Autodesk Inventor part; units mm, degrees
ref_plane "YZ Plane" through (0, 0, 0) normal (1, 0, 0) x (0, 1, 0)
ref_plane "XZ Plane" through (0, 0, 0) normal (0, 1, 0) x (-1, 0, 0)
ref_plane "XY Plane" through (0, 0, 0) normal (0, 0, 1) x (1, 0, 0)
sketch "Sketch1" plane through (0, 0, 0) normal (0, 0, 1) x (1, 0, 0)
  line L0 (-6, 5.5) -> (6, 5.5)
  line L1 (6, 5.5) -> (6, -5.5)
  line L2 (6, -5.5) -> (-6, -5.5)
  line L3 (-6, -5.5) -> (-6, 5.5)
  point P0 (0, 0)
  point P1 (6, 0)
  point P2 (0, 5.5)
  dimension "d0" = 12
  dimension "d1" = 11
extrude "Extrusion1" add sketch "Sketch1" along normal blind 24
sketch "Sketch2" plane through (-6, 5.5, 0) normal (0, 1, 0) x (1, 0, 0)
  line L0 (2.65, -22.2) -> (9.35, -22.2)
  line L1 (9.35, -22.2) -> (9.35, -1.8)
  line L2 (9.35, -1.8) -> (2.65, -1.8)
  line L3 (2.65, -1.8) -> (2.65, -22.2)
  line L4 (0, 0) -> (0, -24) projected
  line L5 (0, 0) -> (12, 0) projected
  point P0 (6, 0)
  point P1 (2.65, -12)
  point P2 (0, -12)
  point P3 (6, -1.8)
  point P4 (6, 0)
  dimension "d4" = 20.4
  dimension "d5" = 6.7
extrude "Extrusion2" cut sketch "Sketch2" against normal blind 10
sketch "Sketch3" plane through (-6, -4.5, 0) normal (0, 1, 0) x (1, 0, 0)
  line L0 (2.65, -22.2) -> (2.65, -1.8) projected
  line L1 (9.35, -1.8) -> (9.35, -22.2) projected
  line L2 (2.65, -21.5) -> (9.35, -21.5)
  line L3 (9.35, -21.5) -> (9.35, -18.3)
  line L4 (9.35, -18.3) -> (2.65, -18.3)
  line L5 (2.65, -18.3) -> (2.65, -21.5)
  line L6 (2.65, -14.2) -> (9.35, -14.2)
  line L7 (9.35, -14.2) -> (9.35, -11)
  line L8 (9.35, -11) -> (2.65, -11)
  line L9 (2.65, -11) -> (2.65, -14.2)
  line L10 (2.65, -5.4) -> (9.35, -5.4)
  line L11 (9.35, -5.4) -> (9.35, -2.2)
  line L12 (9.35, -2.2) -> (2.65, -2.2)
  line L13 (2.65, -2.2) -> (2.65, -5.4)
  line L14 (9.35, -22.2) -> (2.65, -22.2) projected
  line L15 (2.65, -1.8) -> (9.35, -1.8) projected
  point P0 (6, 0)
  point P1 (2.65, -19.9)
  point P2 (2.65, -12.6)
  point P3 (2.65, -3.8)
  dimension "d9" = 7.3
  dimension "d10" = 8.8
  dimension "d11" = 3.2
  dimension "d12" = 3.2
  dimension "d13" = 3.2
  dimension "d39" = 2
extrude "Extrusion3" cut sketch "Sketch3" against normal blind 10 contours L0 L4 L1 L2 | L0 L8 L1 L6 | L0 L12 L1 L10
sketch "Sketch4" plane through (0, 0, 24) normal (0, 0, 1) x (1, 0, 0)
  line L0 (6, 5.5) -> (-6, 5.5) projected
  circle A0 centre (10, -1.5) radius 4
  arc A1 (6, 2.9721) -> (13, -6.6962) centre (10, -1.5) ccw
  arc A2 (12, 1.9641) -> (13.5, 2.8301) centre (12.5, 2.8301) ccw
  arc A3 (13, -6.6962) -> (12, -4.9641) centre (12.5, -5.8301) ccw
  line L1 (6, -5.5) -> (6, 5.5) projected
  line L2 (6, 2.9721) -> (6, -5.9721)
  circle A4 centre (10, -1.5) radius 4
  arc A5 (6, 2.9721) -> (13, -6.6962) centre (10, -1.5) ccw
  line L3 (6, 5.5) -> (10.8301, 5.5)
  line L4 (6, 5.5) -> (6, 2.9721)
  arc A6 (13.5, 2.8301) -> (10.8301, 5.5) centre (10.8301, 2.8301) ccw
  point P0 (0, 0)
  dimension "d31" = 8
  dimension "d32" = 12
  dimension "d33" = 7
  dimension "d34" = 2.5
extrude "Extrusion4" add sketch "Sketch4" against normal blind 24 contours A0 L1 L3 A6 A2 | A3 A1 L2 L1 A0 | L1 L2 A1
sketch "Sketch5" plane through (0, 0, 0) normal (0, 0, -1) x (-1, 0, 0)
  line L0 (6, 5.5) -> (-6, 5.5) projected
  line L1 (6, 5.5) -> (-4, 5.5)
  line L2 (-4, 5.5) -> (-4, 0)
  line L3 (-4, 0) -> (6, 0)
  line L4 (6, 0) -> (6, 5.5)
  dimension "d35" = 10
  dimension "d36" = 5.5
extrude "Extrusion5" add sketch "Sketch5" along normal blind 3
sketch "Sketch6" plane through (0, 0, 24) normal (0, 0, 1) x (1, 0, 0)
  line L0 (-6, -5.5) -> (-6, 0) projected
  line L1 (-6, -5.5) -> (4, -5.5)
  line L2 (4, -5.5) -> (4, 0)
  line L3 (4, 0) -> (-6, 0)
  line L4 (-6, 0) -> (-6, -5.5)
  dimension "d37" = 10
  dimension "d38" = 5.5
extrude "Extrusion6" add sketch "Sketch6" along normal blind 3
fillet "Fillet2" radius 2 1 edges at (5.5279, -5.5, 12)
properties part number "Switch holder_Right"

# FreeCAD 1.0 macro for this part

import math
import FreeCAD as App
import Part
import Sketcher

V = App.Vector


def edges_at(feature, points):
    """Names of the edges that pass closest to the given points."""
    edges = feature.Shape.Edges
    near = lambda p: min(range(len(edges)), key=lambda i: edges[i].distToShape(Part.Vertex(*p))[0])
    return sorted({f"Edge{near(p) + 1}" for p in points})


def add_polygon(sketch, points):
    """Adds a closed chain of lines whose ends are joined by coincident constraints."""
    first, n = sketch.GeometryCount, len(points)
    for a, b in zip(points, points[1:] + points[:1]):
        sketch.addGeometry(Part.LineSegment(App.Vector(*a, 0), App.Vector(*b, 0)), False)
    for i in range(n):
        sketch.addConstraint(Sketcher.Constraint("Coincident", first + i, 2, first + (i + 1) % n, 1))

doc = App.newDocument("Part")
body = doc.addObject("PartDesign::Body", "Body")

sketch1 = doc.addObject("Sketcher::SketchObject", "Sketch")
body.addObject(sketch1)
sketch1.AttachmentSupport = (doc.XY_Plane, [""])
sketch1.MapMode = "FlatFace"
add_polygon(sketch1, [(6, 5.5), (-6, 5.5), (-6, -5.5), (6, -5.5)])
sketch1.addConstraint([
    Sketcher.Constraint("Horizontal", 0),
    Sketcher.Constraint("Vertical", 1),
    Sketcher.Constraint("Horizontal", 2),
    Sketcher.Constraint("Vertical", 3),
    Sketcher.Constraint("Symmetric", 0, 2, 2, 2, -1, 1),
    Sketcher.Constraint("DistanceX", 0, 2, 0, 1, 12.0),
    Sketcher.Constraint("DistanceY", 1, 2, 1, 1, 11.0),
])
pad1 = doc.addObject("PartDesign::Pad", "Pad")
body.addObject(pad1)
pad1.Profile = sketch1
pad1.Length = 24

sketch2 = doc.addObject("Sketcher::SketchObject", "Sketch001")
body.addObject(sketch2)
sketch2.AttachmentSupport = (doc.XZ_Plane, [""])
sketch2.MapMode = "FlatFace"
sketch2.AttachmentOffset = App.Placement(V(0, 0, -5.5), App.Rotation())
add_polygon(sketch2, [(-3.35, 1.8), (-3.35, 22.2), (3.35, 22.2), (3.35, 1.8)])
sketch2.addConstraint([
    Sketcher.Constraint("Vertical", 0),
    Sketcher.Constraint("Horizontal", 1),
    Sketcher.Constraint("Vertical", 2),
    Sketcher.Constraint("Horizontal", 3),
    Sketcher.Constraint("DistanceX", 1, 1, 1, 2, 6.7),
    Sketcher.Constraint("DistanceY", 0, 1, 0, 2, 20.4),
    Sketcher.Constraint("DistanceY", -1, 1, 0, 2, 22.2),
    Sketcher.Constraint("DistanceX", 0, 2, -1, 1, 3.35),
])
pocket1 = doc.addObject("PartDesign::Pocket", "Pocket")
body.addObject(pocket1)
pocket1.Profile = sketch2
pocket1.Length = 10
pocket1.Reversed = True

sketch3 = doc.addObject("Sketcher::SketchObject", "Sketch002")
body.addObject(sketch3)
sketch3.AttachmentSupport = (doc.XZ_Plane, [""])
sketch3.MapMode = "FlatFace"
sketch3.AttachmentOffset = App.Placement(V(0, 0, 4.5), App.Rotation())
add_polygon(sketch3, [(-3.35, 18.3), (-3.35, 21.5), (3.35, 21.5), (3.35, 18.3)])
add_polygon(sketch3, [(-3.35, 11), (-3.35, 14.2), (3.35, 14.2), (3.35, 11)])
add_polygon(sketch3, [(-3.35, 2.2), (-3.35, 5.4), (3.35, 5.4), (3.35, 2.2)])
sketch3.addConstraint([
    Sketcher.Constraint("Vertical", 0),
    Sketcher.Constraint("Horizontal", 1),
    Sketcher.Constraint("Vertical", 2),
    Sketcher.Constraint("Horizontal", 3),
    Sketcher.Constraint("Vertical", 4),
    Sketcher.Constraint("Horizontal", 5),
    Sketcher.Constraint("Vertical", 6),
    Sketcher.Constraint("Horizontal", 7),
    Sketcher.Constraint("Vertical", 8),
    Sketcher.Constraint("Horizontal", 9),
    Sketcher.Constraint("Vertical", 10),
    Sketcher.Constraint("Horizontal", 11),
    Sketcher.Constraint("Vertical", 3, 2, 4, 2),
    Sketcher.Constraint("Vertical", 2, 2, 5, 2),
    Sketcher.Constraint("Vertical", 7, 2, 8, 2),
    Sketcher.Constraint("Vertical", 6, 2, 9, 2),
    Sketcher.Constraint("Equal", 2, 4),
    Sketcher.Constraint("Equal", 6, 8),
    Sketcher.Constraint("DistanceY", 0, 1, 0, 2, 3.2),
    Sketcher.Constraint("DistanceY", 4, 2, 0, 2, 7.3),
    Sketcher.Constraint("DistanceY", 8, 2, 4, 2, 8.8),
    Sketcher.Constraint("DistanceX", 1, 1, 1, 2, 6.7),
    Sketcher.Constraint("DistanceY", -1, 1, 6, 2, 11.0),
    Sketcher.Constraint("DistanceX", 0, 2, -1, 1, 3.35),
])
pocket2 = doc.addObject("PartDesign::Pocket", "Pocket001")
body.addObject(pocket2)
pocket2.Profile = sketch3
pocket2.Length = 10
pocket2.Reversed = True

sketch4 = doc.addObject("Sketcher::SketchObject", "Sketch003")
body.addObject(sketch4)
sketch4.AttachmentSupport = (doc.XY_Plane, [""])
sketch4.MapMode = "FlatFace"
sketch4.AttachmentOffset = App.Placement(V(0, 0, 24), App.Rotation())
sketch4.addGeometry([
    Part.ArcOfCircle(Part.Circle(V(12.5, 2.8301, 0), V(0, 0, 1), 0.999978), math.radians(-120.000728), math.radians(0)),
    Part.ArcOfCircle(Part.Circle(V(10.8301, 2.8301, 0), V(0, 0, 1), 2.6699), math.radians(0), math.radians(90)),
    Part.LineSegment(V(10.8301, 5.5, 0), V(6, 5.5, 0)),
    Part.LineSegment(V(6, 5.5, 0), V(6, 2.9721, 0)),
    Part.ArcOfCircle(Part.Circle(V(10, -1.5, 0), V(0, 0, 1), 5.999973), math.radians(131.810544), math.radians(299.999773)),
    Part.ArcOfCircle(Part.Circle(V(12.5, -5.8301, 0), V(0, 0, 1), 1.000065), math.radians(-60.002137), math.radians(120.000728)),
    Part.ArcOfCircle(Part.Circle(V(10, -1.5, 0), V(0, 0, 1), 4), math.radians(59.999988), math.radians(300.000012)),
], False)
sketch4.addConstraint([
    Sketcher.Constraint("Tangent", 0, 2, 1, 1),
    Sketcher.Constraint("Tangent", 1, 2, 2, 1),
    Sketcher.Constraint("Coincident", 2, 2, 3, 1),
    Sketcher.Constraint("Coincident", 3, 2, 4, 1),
    Sketcher.Constraint("Tangent", 4, 2, 5, 1),
    Sketcher.Constraint("Tangent", 5, 2, 6, 2),
    Sketcher.Constraint("Tangent", 6, 1, 0, 1),
    Sketcher.Constraint("Horizontal", 2),
    Sketcher.Constraint("Vertical", 3),
    Sketcher.Constraint("Coincident", 6, 3, 4, 3),
    Sketcher.Constraint("Equal", 0, 5),
    Sketcher.Constraint("Horizontal", 0, 3, 1, 3),
    Sketcher.Constraint("Vertical", 0, 3, 5, 3),
    Sketcher.Constraint("Radius", 4, 6.0),
    Sketcher.Constraint("Radius", 6, 4.0),
    Sketcher.Constraint("DistanceX", -1, 1, 5, 2, 12.0),
    Sketcher.Constraint("DistanceY", 4, 3, 1, 2, 7.0),
    Sketcher.Constraint("DistanceX", 4, 3, 0, 3, 2.5),
    Sketcher.Constraint("DistanceX", -1, 1, 2, 2, 6.0),
    Sketcher.Constraint("DistanceY", 4, 3, -1, 1, 1.5),
])
pad2 = doc.addObject("PartDesign::Pad", "Pad001")
body.addObject(pad2)
pad2.Profile = sketch4
pad2.Length = 24
pad2.Reversed = True

sketch5 = doc.addObject("Sketcher::SketchObject", "Sketch004")
body.addObject(sketch5)
sketch5.AttachmentSupport = (doc.XY_Plane, [""])
sketch5.MapMode = "FlatFace"
add_polygon(sketch5, [(-6, 0), (-6, 5.5), (4, 5.5), (4, 0)])
sketch5.addConstraint([
    Sketcher.Constraint("Vertical", 0),
    Sketcher.Constraint("Horizontal", 1),
    Sketcher.Constraint("Vertical", 2),
    Sketcher.Constraint("Horizontal", 3),
    Sketcher.Constraint("PointOnObject", 2, 2, -1),
    Sketcher.Constraint("DistanceX", 1, 1, 1, 2, 10.0),
    Sketcher.Constraint("DistanceY", 0, 1, 0, 2, 5.5),
    Sketcher.Constraint("DistanceX", 0, 2, -1, 1, 6.0),
])
pad3 = doc.addObject("PartDesign::Pad", "Pad002")
body.addObject(pad3)
pad3.Profile = sketch5
pad3.Length = 3
pad3.Reversed = True

sketch6 = doc.addObject("Sketcher::SketchObject", "Sketch005")
body.addObject(sketch6)
sketch6.AttachmentSupport = (doc.XY_Plane, [""])
sketch6.MapMode = "FlatFace"
sketch6.AttachmentOffset = App.Placement(V(0, 0, 24), App.Rotation())
add_polygon(sketch6, [(-6, 0), (-6, -5.5), (4, -5.5), (4, 0)])
sketch6.addConstraint([
    Sketcher.Constraint("Vertical", 0),
    Sketcher.Constraint("Horizontal", 1),
    Sketcher.Constraint("Vertical", 2),
    Sketcher.Constraint("Horizontal", 3),
    Sketcher.Constraint("PointOnObject", 2, 2, -1),
    Sketcher.Constraint("DistanceX", 1, 1, 1, 2, 10.0),
    Sketcher.Constraint("DistanceY", 0, 2, 0, 1, 5.5),
    Sketcher.Constraint("DistanceX", 0, 2, -1, 1, 6.0),
])
pad4 = doc.addObject("PartDesign::Pad", "Pad003")
body.addObject(pad4)
pad4.Profile = sketch6
pad4.Length = 3
doc.recompute()

fillet = doc.addObject("PartDesign::Fillet", "Fillet")
body.addObject(fillet)
fillet.Base = (pad4, edges_at(pad4, [(5.528, -5.5, 12)]))
fillet.Radius = 2

doc.recompute()
